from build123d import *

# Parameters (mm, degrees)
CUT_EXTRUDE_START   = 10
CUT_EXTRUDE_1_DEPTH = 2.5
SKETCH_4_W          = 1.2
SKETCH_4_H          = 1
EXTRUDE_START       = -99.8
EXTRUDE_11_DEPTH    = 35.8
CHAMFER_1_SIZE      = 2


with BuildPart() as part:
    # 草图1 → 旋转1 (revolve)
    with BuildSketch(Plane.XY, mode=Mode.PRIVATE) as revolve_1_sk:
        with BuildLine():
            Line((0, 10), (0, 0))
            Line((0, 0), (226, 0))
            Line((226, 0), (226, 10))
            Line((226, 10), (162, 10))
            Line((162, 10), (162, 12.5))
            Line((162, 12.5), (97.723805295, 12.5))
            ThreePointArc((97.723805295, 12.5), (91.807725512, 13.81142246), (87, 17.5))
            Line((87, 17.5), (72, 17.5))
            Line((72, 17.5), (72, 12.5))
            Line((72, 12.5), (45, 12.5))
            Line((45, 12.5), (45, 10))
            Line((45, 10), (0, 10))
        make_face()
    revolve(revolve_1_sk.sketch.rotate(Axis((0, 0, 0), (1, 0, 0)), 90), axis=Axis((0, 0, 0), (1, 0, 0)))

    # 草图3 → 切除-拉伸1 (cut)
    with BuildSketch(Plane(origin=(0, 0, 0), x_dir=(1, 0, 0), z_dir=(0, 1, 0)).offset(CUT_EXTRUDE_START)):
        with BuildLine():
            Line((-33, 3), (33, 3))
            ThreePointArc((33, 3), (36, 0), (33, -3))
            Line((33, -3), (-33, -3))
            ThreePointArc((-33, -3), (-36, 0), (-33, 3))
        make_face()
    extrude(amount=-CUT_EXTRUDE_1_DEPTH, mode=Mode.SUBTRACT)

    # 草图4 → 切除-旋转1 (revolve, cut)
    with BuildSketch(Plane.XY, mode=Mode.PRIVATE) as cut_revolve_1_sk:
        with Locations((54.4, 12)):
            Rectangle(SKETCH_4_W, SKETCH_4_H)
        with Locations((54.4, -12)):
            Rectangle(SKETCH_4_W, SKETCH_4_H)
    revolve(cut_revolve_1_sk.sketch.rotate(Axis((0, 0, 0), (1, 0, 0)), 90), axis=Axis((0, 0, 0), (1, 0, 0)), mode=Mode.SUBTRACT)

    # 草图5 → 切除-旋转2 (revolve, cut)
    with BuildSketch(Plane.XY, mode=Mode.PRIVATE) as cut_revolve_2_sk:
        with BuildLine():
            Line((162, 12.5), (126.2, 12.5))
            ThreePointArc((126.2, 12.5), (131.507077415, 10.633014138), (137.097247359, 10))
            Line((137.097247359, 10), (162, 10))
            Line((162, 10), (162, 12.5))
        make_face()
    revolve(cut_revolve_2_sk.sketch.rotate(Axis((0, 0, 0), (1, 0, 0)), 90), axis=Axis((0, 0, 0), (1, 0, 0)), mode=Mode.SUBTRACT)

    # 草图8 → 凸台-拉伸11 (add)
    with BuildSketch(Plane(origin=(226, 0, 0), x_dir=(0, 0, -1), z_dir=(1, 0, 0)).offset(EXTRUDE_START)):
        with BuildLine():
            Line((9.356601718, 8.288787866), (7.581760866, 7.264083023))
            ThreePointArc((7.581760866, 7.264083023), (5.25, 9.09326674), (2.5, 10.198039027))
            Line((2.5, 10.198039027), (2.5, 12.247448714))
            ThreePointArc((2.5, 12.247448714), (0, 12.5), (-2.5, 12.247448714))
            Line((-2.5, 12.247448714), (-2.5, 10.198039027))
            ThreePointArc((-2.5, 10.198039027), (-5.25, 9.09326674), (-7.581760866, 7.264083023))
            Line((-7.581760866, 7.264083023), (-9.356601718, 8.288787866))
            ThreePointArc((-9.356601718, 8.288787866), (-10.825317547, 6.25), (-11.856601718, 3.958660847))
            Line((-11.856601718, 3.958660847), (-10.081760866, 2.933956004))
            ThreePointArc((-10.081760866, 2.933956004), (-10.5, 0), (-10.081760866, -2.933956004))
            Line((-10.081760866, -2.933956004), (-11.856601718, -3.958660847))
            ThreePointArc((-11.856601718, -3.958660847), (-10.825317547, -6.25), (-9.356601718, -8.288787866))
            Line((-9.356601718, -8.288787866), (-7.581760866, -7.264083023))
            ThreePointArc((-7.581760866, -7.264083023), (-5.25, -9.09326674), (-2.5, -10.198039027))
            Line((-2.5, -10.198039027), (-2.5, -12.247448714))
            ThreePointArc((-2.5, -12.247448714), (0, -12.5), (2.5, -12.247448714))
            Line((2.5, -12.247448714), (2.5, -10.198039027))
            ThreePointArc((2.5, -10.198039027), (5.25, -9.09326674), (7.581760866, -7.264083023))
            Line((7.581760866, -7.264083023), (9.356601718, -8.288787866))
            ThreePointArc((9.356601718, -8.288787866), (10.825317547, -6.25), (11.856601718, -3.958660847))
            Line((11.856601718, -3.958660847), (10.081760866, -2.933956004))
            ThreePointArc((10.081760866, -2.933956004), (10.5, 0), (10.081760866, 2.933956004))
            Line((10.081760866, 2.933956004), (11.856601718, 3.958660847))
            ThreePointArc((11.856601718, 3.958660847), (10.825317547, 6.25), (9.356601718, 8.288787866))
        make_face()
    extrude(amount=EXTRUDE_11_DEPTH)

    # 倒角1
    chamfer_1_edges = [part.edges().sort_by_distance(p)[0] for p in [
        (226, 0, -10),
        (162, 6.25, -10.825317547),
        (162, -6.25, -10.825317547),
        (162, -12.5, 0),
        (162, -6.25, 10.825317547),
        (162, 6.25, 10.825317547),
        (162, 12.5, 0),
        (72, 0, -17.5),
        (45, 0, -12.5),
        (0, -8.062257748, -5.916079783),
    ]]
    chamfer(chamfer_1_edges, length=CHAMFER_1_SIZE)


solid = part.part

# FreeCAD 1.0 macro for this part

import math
import FreeCAD as App
import Part
import Sketcher
from FreeCAD import Vector
Q = App.Units.Quantity


def edges_at(feature, points):
    """Names of the edges that pass closest to the given points."""
    edges = feature.Shape.Edges
    near = lambda p: min(range(len(edges)), key=lambda i: edges[i].distToShape(Part.Vertex(*p))[0])
    return sorted({f"Edge{near(p) + 1}" for p in points})

doc = App.newDocument("Part")
body = doc.addObject("PartDesign::Body", "Body")

sketch1 = body.newObject("Sketcher::SketchObject", "Sketch")
sketch1.AttachmentSupport = (doc.getObject("XY_Plane"), [""])
sketch1.MapMode = "FlatFace"
sketch1.addGeometry([
    Part.LineSegment(Vector(0, 10, 0), Vector(0, 0, 0)),
    Part.LineSegment(Vector(0, 0, 0), Vector(226, 0, 0)),
    Part.LineSegment(Vector(226, 0, 0), Vector(226, 10, 0)),
    Part.LineSegment(Vector(226, 10, 0), Vector(162, 10, 0)),
    Part.LineSegment(Vector(162, 10, 0), Vector(162, 12.5, 0)),
    Part.LineSegment(Vector(162, 12.5, 0), Vector(97.7, 12.5, 0)),
    Part.ArcOfCircle(Part.Circle(Vector(97.7, 26.5, 0), Vector(0, 0, 1), 14), math.radians(-140), math.radians(-90)),
    Part.LineSegment(Vector(87, 17.5, 0), Vector(72, 17.5, 0)),
    Part.LineSegment(Vector(72, 17.5, 0), Vector(72, 12.5, 0)),
    Part.LineSegment(Vector(72, 12.5, 0), Vector(45, 12.5, 0)),
    Part.LineSegment(Vector(45, 12.5, 0), Vector(45, 10, 0)),
    Part.LineSegment(Vector(45, 10, 0), Vector(0, 10, 0)),
], False)
sketch1.addConstraint([
    Sketcher.Constraint("Coincident", 0, 2, 1, 1),
    Sketcher.Constraint("Coincident", 1, 2, 2, 1),
    Sketcher.Constraint("Coincident", 2, 2, 3, 1),
    Sketcher.Constraint("Coincident", 3, 2, 4, 1),
    Sketcher.Constraint("Coincident", 4, 2, 5, 1),
    Sketcher.Constraint("Tangent", 5, 2, 6, 2),
    Sketcher.Constraint("Coincident", 6, 1, 7, 1),
    Sketcher.Constraint("Coincident", 7, 2, 8, 1),
    Sketcher.Constraint("Coincident", 8, 2, 9, 1),
    Sketcher.Constraint("Coincident", 9, 2, 10, 1),
    Sketcher.Constraint("Coincident", 10, 2, 11, 1),
    Sketcher.Constraint("Coincident", 11, 2, 0, 1),
    Sketcher.Constraint("Vertical", 0),
    Sketcher.Constraint("Horizontal", 1),
    Sketcher.Constraint("Vertical", 2),
    Sketcher.Constraint("Horizontal", 3),
    Sketcher.Constraint("Vertical", 4),
    Sketcher.Constraint("Horizontal", 5),
    Sketcher.Constraint("Horizontal", 7),
    Sketcher.Constraint("Vertical", 8),
    Sketcher.Constraint("Horizontal", 9),
    Sketcher.Constraint("Vertical", 10),
    Sketcher.Constraint("Horizontal", 11),
    Sketcher.Constraint("Coincident", 0, 2, -1, 1),
    Sketcher.Constraint("Horizontal", 5, 2, 8, 2),
    Sketcher.Constraint("Horizontal", 3, 2, 10, 2),
    Sketcher.Constraint("Radius", 6, 14.0),
    Sketcher.Constraint("DistanceX", 1, 1, 1, 2, 226.0),
    Sketcher.Constraint("DistanceX", 3, 2, 3, 1, 64.0),
    Sketcher.Constraint("DistanceX", 7, 2, 7, 1, 15.0),
    Sketcher.Constraint("DistanceX", 9, 2, 9, 1, 27.0),
    Sketcher.Constraint("DistanceX", 11, 2, 11, 1, 45.0),
    Sketcher.Constraint("DistanceY", 0, 2, 0, 1, 10.0),
    Sketcher.Constraint("DistanceY", 8, 2, 8, 1, 5.0),
    Sketcher.Constraint("DistanceY", 4, 1, 4, 2, 2.5),
])
revolution = body.newObject("PartDesign::Revolution", "Revolution")
revolution.Profile = sketch1
revolution.ReferenceAxis = (sketch1, ["H_Axis"])
revolution.Angle = 360

sketch2 = body.newObject("Sketcher::SketchObject", "Sketch001")
sketch2.AttachmentSupport = (doc.getObject("XZ_Plane"), [""])
sketch2.MapMode = "FlatFace"
sketch2.AttachmentOffset = App.Placement(Vector(0, 0, -10), App.Rotation())
sketch2.addGeometry([
    Part.LineSegment(Vector(33, -3, 0), Vector(-33, -3, 0)),
    Part.ArcOfCircle(Part.Circle(Vector(-33, 0, 0), Vector(0, 0, 1), 3), math.radians(90), math.radians(270)),
    Part.LineSegment(Vector(-33, 3, 0), Vector(33, 3, 0)),
    Part.ArcOfCircle(Part.Circle(Vector(33, 0, 0), Vector(0, 0, 1), 3), math.radians(-90), math.radians(90)),
], False)
sketch2.addConstraint([
    Sketcher.Constraint("Tangent", 0, 2, 1, 2),
    Sketcher.Constraint("Tangent", 1, 1, 2, 1),
    Sketcher.Constraint("Tangent", 2, 2, 3, 2),
    Sketcher.Constraint("Tangent", 3, 1, 0, 1),
    Sketcher.Constraint("Horizontal", 0),
    Sketcher.Constraint("Horizontal", 2),
    Sketcher.Constraint("Symmetric", 1, 3, 3, 3, -1, 1),
    Sketcher.Constraint("Radius", 1, 3.0),
    Sketcher.Constraint("DistanceX", 0, 2, 0, 1, 66.0),
])
pocket1 = body.newObject("PartDesign::Pocket", "Pocket")
pocket1.Profile = sketch2
pocket1.Length = 2.5
pocket1.Reversed = True

sketch3 = body.newObject("Sketcher::SketchObject", "Sketch002")
sketch3.AttachmentSupport = (doc.getObject("XY_Plane"), [""])
sketch3.MapMode = "FlatFace"
sketch3.addGeometry([
    Part.LineSegment(Vector(53.8, 12.5, 0), Vector(53.8, 11.5, 0)),
    Part.LineSegment(Vector(53.8, 11.5, 0), Vector(55, 11.5, 0)),
    Part.LineSegment(Vector(55, 11.5, 0), Vector(55, 12.5, 0)),
    Part.LineSegment(Vector(55, 12.5, 0), Vector(53.8, 12.5, 0)),
    Part.LineSegment(Vector(53.8, -11.5, 0), Vector(53.8, -12.5, 0)),
    Part.LineSegment(Vector(53.8, -12.5, 0), Vector(55, -12.5, 0)),
    Part.LineSegment(Vector(55, -12.5, 0), Vector(55, -11.5, 0)),
    Part.LineSegment(Vector(55, -11.5, 0), Vector(53.8, -11.5, 0)),
], False)
sketch3.addConstraint([
    Sketcher.Constraint("Coincident", 0, 2, 1, 1),
    Sketcher.Constraint("Coincident", 1, 2, 2, 1),
    Sketcher.Constraint("Coincident", 2, 2, 3, 1),
    Sketcher.Constraint("Coincident", 3, 2, 0, 1),
    Sketcher.Constraint("Coincident", 4, 2, 5, 1),
    Sketcher.Constraint("Coincident", 5, 2, 6, 1),
    Sketcher.Constraint("Coincident", 6, 2, 7, 1),
    Sketcher.Constraint("Coincident", 7, 2, 4, 1),
    Sketcher.Constraint("Vertical", 0),
    Sketcher.Constraint("Horizontal", 1),
    Sketcher.Constraint("Vertical", 2),
    Sketcher.Constraint("Horizontal", 3),
    Sketcher.Constraint("Vertical", 4),
    Sketcher.Constraint("Horizontal", 5),
    Sketcher.Constraint("Vertical", 6),
    Sketcher.Constraint("Horizontal", 7),
    Sketcher.Constraint("Symmetric", 3, 2, 4, 2, -1),
    Sketcher.Constraint("Symmetric", 1, 2, 6, 2, -1),
    Sketcher.Constraint("DistanceY", 0, 2, 0, 1, 1.0),
    Sketcher.Constraint("DistanceX", 1, 1, 1, 2, 1.2),
    Sketcher.Constraint("DistanceX", -1, 1, 1, 2, 55.0),
    Sketcher.Constraint("DistanceY", 4, 2, 0, 2, 24.0),
])
groove = body.newObject("PartDesign::Groove", "Groove")
groove.Profile = sketch3
groove.ReferenceAxis = (sketch3, ["H_Axis"])
groove.Angle = 360

sketch4 = body.newObject("Sketcher::SketchObject", "Sketch003")
sketch4.AttachmentSupport = (doc.getObject("XY_Plane"), [""])
sketch4.MapMode = "FlatFace"
sketch4.addGeometry([
    Part.LineSegment(Vector(162, 12.5, 0), Vector(126.2, 12.5, 0)),
    Part.ArcOfCircle(Part.Circle(Vector(137.1, 35, 0), Vector(0, 0, 1), 25), math.radians(-116), math.radians(-90)),
    Part.LineSegment(Vector(137.1, 10, 0), Vector(162, 10, 0)),
    Part.LineSegment(Vector(162, 10, 0), Vector(162, 12.5, 0)),
], False)
sketch4.addConstraint([
    Sketcher.Constraint("Coincident", 0, 2, 1, 1),
    Sketcher.Constraint("Tangent", 1, 2, 2, 1),
    Sketcher.Constraint("Coincident", 2, 2, 3, 1),
    Sketcher.Constraint("Coincident", 3, 2, 0, 1),
    Sketcher.Constraint("Horizontal", 0),
    Sketcher.Constraint("Horizontal", 2),
    Sketcher.Constraint("Vertical", 3),
    Sketcher.Constraint("Radius", 1, 25.0),
    Sketcher.Constraint("DistanceX", 0, 2, 0, 1, 35.8),
    Sketcher.Constraint("DistanceY", 3, 1, 3, 2, 2.5),
    Sketcher.Constraint("DistanceY", -1, 1, 1, 3, 35.0),
    Sketcher.Constraint("DistanceX", -1, 1, 2, 2, 162.0),
])
groove2 = body.newObject("PartDesign::Groove", "Groove001")
groove2.Profile = sketch4
groove2.ReferenceAxis = (sketch4, ["H_Axis"])
groove2.Angle = 360

sketch5 = body.newObject("Sketcher::SketchObject", "Sketch004")
sketch5.AttachmentSupport = (doc.getObject("YZ_Plane"), [""])
sketch5.MapMode = "FlatFace"
sketch5.AttachmentOffset = App.Placement(Vector(0, 0, 126.2), App.Rotation())
sketch5.addGeometry([
    Part.LineSegment(Vector(8.3, -9.4, 0), Vector(7.3, -7.6, 0)),
    Part.ArcOfCircle(Part.Circle(Vector(0, 0, 0), Vector(0, 0, 1), 10.5), math.radians(-46), math.radians(-14)),
    Part.LineSegment(Vector(10.2, -2.5, 0), Vector(12.2, -2.5, 0)),
    Part.ArcOfCircle(Part.Circle(Vector(0, 0, 0), Vector(0, 0, 1), 12.5), math.radians(-12), math.radians(12)),
    Part.LineSegment(Vector(12.2, 2.5, 0), Vector(10.2, 2.5, 0)),
    Part.ArcOfCircle(Part.Circle(Vector(0, 0, 0), Vector(0, 0, 1), 10.5), math.radians(14), math.radians(46)),
    Part.LineSegment(Vector(7.3, 7.6, 0), Vector(8.3, 9.4, 0)),
    Part.ArcOfCircle(Part.Circle(Vector(0, 0, 0), Vector(0, 0, 1), 12.5), math.radians(48), math.radians(72)),
    Part.LineSegment(Vector(4, 11.9, 0), Vector(2.9, 10.1, 0)),
    Part.ArcOfCircle(Part.Circle(Vector(0, 0, 0), Vector(0, 0, 1), 10.5), math.radians(74), math.radians(106)),
    Part.LineSegment(Vector(-2.9, 10.1, 0), Vector(-4, 11.9, 0)),
    Part.ArcOfCircle(Part.Circle(Vector(0, 0, 0), Vector(0, 0, 1), 12.5), math.radians(108), math.radians(132)),
    Part.LineSegment(Vector(-8.3, 9.4, 0), Vector(-7.3, 7.6, 0)),
    Part.ArcOfCircle(Part.Circle(Vector(0, 0, 0), Vector(0, 0, 1), 10.5), math.radians(134), math.radians(166)),
    Part.LineSegment(Vector(-10.2, 2.5, 0), Vector(-12.2, 2.5, 0)),
    Part.ArcOfCircle(Part.Circle(Vector(0, 0, 0), Vector(0, 0, 1), 12.5), math.radians(168), math.radians(192)),
    Part.LineSegment(Vector(-12.2, -2.5, 0), Vector(-10.2, -2.5, 0)),
    Part.ArcOfCircle(Part.Circle(Vector(0, 0, 0), Vector(0, 0, 1), 10.5), math.radians(-166), math.radians(-134)),
    Part.LineSegment(Vector(-7.3, -7.6, 0), Vector(-8.3, -9.4, 0)),
    Part.ArcOfCircle(Part.Circle(Vector(0, 0, 0), Vector(0, 0, 1), 12.5), math.radians(-132), math.radians(-108)),
    Part.LineSegment(Vector(-4, -11.9, 0), Vector(-2.9, -10.1, 0)),
    Part.ArcOfCircle(Part.Circle(Vector(0, 0, 0), Vector(0, 0, 1), 10.5), math.radians(-106), math.radians(-74)),
    Part.LineSegment(Vector(2.9, -10.1, 0), Vector(4, -11.9, 0)),
    Part.ArcOfCircle(Part.Circle(Vector(0, 0, 0), Vector(0, 0, 1), 12.5), math.radians(-72), math.radians(-48)),
], False)
sketch5.addConstraint([
    Sketcher.Constraint("Coincident", 0, 2, 1, 1),
    Sketcher.Constraint("Coincident", 1, 2, 2, 1),
    Sketcher.Constraint("Coincident", 2, 2, 3, 1),
    Sketcher.Constraint("Coincident", 3, 2, 4, 1),
    Sketcher.Constraint("Coincident", 4, 2, 5, 1),
    Sketcher.Constraint("Coincident", 5, 2, 6, 1),
    Sketcher.Constraint("Coincident", 6, 2, 7, 1),
    Sketcher.Constraint("Coincident", 7, 2, 8, 1),
    Sketcher.Constraint("Coincident", 8, 2, 9, 1),
    Sketcher.Constraint("Coincident", 9, 2, 10, 1),
    Sketcher.Constraint("Coincident", 10, 2, 11, 1),
    Sketcher.Constraint("Coincident", 11, 2, 12, 1),
    Sketcher.Constraint("Coincident", 12, 2, 13, 1),
    Sketcher.Constraint("Coincident", 13, 2, 14, 1),
    Sketcher.Constraint("Coincident", 14, 2, 15, 1),
    Sketcher.Constraint("Coincident", 15, 2, 16, 1),
    Sketcher.Constraint("Coincident", 16, 2, 17, 1),
    Sketcher.Constraint("Coincident", 17, 2, 18, 1),
    Sketcher.Constraint("Coincident", 18, 2, 19, 1),
    Sketcher.Constraint("Coincident", 19, 2, 20, 1),
    Sketcher.Constraint("Coincident", 20, 2, 21, 1),
    Sketcher.Constraint("Coincident", 21, 2, 22, 1),
    Sketcher.Constraint("Coincident", 22, 2, 23, 1),
    Sketcher.Constraint("Coincident", 23, 2, 0, 1),
    Sketcher.Constraint("Horizontal", 2),
    Sketcher.Constraint("Horizontal", 4),
    Sketcher.Constraint("Horizontal", 14),
    Sketcher.Constraint("Horizontal", 16),
    Sketcher.Constraint("Coincident", 1, 3, -1, 1),
    Sketcher.Constraint("Coincident", 3, 3, -1, 1),
    Sketcher.Constraint("Coincident", 5, 3, -1, 1),
    Sketcher.Constraint("Coincident", 7, 3, -1, 1),
    Sketcher.Constraint("Coincident", 9, 3, -1, 1),
    Sketcher.Constraint("Coincident", 11, 3, -1, 1),
    Sketcher.Constraint("Coincident", 13, 3, -1, 1),
    Sketcher.Constraint("Coincident", 15, 3, -1, 1),
    Sketcher.Constraint("Coincident", 17, 3, -1, 1),
    Sketcher.Constraint("Coincident", 19, 3, -1, 1),
    Sketcher.Constraint("Coincident", 21, 3, -1, 1),
    Sketcher.Constraint("Coincident", 23, 3, -1, 1),
    Sketcher.Constraint("Equal", 1, 5),
    Sketcher.Constraint("Equal", 3, 7),
    Sketcher.Constraint("Equal", 5, 9),
    Sketcher.Constraint("Equal", 7, 11),
    Sketcher.Constraint("Equal", 9, 13),
    Sketcher.Constraint("Equal", 11, 15),
    Sketcher.Constraint("Equal", 13, 17),
    Sketcher.Constraint("Equal", 15, 19),
    Sketcher.Constraint("Equal", 17, 21),
    Sketcher.Constraint("Equal", 19, 23),
    Sketcher.Constraint("Parallel", 6, 8),
    Sketcher.Constraint("Parallel", 0, 10),
    Sketcher.Constraint("Parallel", 10, 12),
    Sketcher.Constraint("Parallel", 8, 18),
    Sketcher.Constraint("Parallel", 18, 20),
    Sketcher.Constraint("Parallel", 12, 22),
    Sketcher.Constraint("Horizontal", 8, 2, 9, 2),
    Sketcher.Constraint("Horizontal", 7, 2, 10, 2),
    Sketcher.Constraint("Horizontal", 6, 2, 11, 2),
    Sketcher.Constraint("Horizontal", 4, 2, 13, 2),
    Sketcher.Constraint("Horizontal", 2, 2, 15, 2),
    Sketcher.Constraint("Horizontal", 0, 2, 17, 2),
    Sketcher.Constraint("Horizontal", 20, 2, 21, 2),
    Sketcher.Constraint("Vertical", 2, 2, 3, 2),
    Sketcher.Constraint("Vertical", 0, 2, 5, 2),
    Sketcher.Constraint("Vertical", 10, 2, 19, 2),
    Sketcher.Constraint("Equal", 6, 8),
    Sketcher.Constraint("Radius", 1, 10.5),
    Sketcher.Constraint("Radius", 3, 12.5),
    Sketcher.Constraint("Angle", 0, Q("120 deg")),
    Sketcher.Constraint("DistanceY", 2, 2, 3, 2, 5.0),
    Sketcher.Constraint("DistanceY", 6, 2, 7, 2, 2.5),
])
pad1 = body.newObject("PartDesign::Pad", "Pad")
pad1.Profile = sketch5
pad1.Length = 35.8
doc.recompute()

chamfer = body.newObject("PartDesign::Chamfer", "Chamfer")
chamfer.Base = (pad1, edges_at(pad1, [
    (226, 0, -10),
    (162, 6.25, -10.825),
    (162, -6.25, -10.825),
    (162, -12.5, 0),
    (162, -6.25, 10.825),
    (162, 6.25, 10.825),
    (162, 12.5, 0),
    (72, 0, -17.5),
    (45, 0, -12.5),
    (0, -8.062, -5.916),
]))
chamfer.Size = 2

doc.recompute()
